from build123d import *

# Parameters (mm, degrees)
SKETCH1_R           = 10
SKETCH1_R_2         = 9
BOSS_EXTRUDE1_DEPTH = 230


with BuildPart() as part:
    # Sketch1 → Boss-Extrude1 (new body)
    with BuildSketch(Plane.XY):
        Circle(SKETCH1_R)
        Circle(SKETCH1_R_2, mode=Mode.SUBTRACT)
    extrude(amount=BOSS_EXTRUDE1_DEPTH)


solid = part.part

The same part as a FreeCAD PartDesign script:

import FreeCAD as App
import Part
import Sketcher
Q = App.Units.Quantity

doc = App.newDocument("Part")
body = doc.addObject("PartDesign::Body", "Body")

sketch1 = body.newObject("Sketcher::SketchObject", "Sketch")
sketch1.AttachmentSupport = (doc.getObject("XY_Plane"), [""])
sketch1.MapMode = "FlatFace"
sketch1.addGeometry(Part.Circle(App.Vector(0, 0, 0), App.Vector(0, 0, 1), 10), False)
sketch1.addGeometry(Part.Circle(App.Vector(0, 0, 0), App.Vector(0, 0, 1), 9), False)
sketch1.addConstraint(Sketcher.Constraint("Coincident", 0, 3, -1, 1))
sketch1.addConstraint(Sketcher.Constraint("Coincident", 1, 3, -1, 1))
sketch1.addConstraint(Sketcher.Constraint("Diameter", 0, Q("20 mm")))
sketch1.addConstraint(Sketcher.Constraint("Diameter", 1, Q("18 mm")))
pad1 = body.newObject("PartDesign::Pad", "Pad")
pad1.Profile = sketch1
pad1.Length = 230

doc.recompute()
